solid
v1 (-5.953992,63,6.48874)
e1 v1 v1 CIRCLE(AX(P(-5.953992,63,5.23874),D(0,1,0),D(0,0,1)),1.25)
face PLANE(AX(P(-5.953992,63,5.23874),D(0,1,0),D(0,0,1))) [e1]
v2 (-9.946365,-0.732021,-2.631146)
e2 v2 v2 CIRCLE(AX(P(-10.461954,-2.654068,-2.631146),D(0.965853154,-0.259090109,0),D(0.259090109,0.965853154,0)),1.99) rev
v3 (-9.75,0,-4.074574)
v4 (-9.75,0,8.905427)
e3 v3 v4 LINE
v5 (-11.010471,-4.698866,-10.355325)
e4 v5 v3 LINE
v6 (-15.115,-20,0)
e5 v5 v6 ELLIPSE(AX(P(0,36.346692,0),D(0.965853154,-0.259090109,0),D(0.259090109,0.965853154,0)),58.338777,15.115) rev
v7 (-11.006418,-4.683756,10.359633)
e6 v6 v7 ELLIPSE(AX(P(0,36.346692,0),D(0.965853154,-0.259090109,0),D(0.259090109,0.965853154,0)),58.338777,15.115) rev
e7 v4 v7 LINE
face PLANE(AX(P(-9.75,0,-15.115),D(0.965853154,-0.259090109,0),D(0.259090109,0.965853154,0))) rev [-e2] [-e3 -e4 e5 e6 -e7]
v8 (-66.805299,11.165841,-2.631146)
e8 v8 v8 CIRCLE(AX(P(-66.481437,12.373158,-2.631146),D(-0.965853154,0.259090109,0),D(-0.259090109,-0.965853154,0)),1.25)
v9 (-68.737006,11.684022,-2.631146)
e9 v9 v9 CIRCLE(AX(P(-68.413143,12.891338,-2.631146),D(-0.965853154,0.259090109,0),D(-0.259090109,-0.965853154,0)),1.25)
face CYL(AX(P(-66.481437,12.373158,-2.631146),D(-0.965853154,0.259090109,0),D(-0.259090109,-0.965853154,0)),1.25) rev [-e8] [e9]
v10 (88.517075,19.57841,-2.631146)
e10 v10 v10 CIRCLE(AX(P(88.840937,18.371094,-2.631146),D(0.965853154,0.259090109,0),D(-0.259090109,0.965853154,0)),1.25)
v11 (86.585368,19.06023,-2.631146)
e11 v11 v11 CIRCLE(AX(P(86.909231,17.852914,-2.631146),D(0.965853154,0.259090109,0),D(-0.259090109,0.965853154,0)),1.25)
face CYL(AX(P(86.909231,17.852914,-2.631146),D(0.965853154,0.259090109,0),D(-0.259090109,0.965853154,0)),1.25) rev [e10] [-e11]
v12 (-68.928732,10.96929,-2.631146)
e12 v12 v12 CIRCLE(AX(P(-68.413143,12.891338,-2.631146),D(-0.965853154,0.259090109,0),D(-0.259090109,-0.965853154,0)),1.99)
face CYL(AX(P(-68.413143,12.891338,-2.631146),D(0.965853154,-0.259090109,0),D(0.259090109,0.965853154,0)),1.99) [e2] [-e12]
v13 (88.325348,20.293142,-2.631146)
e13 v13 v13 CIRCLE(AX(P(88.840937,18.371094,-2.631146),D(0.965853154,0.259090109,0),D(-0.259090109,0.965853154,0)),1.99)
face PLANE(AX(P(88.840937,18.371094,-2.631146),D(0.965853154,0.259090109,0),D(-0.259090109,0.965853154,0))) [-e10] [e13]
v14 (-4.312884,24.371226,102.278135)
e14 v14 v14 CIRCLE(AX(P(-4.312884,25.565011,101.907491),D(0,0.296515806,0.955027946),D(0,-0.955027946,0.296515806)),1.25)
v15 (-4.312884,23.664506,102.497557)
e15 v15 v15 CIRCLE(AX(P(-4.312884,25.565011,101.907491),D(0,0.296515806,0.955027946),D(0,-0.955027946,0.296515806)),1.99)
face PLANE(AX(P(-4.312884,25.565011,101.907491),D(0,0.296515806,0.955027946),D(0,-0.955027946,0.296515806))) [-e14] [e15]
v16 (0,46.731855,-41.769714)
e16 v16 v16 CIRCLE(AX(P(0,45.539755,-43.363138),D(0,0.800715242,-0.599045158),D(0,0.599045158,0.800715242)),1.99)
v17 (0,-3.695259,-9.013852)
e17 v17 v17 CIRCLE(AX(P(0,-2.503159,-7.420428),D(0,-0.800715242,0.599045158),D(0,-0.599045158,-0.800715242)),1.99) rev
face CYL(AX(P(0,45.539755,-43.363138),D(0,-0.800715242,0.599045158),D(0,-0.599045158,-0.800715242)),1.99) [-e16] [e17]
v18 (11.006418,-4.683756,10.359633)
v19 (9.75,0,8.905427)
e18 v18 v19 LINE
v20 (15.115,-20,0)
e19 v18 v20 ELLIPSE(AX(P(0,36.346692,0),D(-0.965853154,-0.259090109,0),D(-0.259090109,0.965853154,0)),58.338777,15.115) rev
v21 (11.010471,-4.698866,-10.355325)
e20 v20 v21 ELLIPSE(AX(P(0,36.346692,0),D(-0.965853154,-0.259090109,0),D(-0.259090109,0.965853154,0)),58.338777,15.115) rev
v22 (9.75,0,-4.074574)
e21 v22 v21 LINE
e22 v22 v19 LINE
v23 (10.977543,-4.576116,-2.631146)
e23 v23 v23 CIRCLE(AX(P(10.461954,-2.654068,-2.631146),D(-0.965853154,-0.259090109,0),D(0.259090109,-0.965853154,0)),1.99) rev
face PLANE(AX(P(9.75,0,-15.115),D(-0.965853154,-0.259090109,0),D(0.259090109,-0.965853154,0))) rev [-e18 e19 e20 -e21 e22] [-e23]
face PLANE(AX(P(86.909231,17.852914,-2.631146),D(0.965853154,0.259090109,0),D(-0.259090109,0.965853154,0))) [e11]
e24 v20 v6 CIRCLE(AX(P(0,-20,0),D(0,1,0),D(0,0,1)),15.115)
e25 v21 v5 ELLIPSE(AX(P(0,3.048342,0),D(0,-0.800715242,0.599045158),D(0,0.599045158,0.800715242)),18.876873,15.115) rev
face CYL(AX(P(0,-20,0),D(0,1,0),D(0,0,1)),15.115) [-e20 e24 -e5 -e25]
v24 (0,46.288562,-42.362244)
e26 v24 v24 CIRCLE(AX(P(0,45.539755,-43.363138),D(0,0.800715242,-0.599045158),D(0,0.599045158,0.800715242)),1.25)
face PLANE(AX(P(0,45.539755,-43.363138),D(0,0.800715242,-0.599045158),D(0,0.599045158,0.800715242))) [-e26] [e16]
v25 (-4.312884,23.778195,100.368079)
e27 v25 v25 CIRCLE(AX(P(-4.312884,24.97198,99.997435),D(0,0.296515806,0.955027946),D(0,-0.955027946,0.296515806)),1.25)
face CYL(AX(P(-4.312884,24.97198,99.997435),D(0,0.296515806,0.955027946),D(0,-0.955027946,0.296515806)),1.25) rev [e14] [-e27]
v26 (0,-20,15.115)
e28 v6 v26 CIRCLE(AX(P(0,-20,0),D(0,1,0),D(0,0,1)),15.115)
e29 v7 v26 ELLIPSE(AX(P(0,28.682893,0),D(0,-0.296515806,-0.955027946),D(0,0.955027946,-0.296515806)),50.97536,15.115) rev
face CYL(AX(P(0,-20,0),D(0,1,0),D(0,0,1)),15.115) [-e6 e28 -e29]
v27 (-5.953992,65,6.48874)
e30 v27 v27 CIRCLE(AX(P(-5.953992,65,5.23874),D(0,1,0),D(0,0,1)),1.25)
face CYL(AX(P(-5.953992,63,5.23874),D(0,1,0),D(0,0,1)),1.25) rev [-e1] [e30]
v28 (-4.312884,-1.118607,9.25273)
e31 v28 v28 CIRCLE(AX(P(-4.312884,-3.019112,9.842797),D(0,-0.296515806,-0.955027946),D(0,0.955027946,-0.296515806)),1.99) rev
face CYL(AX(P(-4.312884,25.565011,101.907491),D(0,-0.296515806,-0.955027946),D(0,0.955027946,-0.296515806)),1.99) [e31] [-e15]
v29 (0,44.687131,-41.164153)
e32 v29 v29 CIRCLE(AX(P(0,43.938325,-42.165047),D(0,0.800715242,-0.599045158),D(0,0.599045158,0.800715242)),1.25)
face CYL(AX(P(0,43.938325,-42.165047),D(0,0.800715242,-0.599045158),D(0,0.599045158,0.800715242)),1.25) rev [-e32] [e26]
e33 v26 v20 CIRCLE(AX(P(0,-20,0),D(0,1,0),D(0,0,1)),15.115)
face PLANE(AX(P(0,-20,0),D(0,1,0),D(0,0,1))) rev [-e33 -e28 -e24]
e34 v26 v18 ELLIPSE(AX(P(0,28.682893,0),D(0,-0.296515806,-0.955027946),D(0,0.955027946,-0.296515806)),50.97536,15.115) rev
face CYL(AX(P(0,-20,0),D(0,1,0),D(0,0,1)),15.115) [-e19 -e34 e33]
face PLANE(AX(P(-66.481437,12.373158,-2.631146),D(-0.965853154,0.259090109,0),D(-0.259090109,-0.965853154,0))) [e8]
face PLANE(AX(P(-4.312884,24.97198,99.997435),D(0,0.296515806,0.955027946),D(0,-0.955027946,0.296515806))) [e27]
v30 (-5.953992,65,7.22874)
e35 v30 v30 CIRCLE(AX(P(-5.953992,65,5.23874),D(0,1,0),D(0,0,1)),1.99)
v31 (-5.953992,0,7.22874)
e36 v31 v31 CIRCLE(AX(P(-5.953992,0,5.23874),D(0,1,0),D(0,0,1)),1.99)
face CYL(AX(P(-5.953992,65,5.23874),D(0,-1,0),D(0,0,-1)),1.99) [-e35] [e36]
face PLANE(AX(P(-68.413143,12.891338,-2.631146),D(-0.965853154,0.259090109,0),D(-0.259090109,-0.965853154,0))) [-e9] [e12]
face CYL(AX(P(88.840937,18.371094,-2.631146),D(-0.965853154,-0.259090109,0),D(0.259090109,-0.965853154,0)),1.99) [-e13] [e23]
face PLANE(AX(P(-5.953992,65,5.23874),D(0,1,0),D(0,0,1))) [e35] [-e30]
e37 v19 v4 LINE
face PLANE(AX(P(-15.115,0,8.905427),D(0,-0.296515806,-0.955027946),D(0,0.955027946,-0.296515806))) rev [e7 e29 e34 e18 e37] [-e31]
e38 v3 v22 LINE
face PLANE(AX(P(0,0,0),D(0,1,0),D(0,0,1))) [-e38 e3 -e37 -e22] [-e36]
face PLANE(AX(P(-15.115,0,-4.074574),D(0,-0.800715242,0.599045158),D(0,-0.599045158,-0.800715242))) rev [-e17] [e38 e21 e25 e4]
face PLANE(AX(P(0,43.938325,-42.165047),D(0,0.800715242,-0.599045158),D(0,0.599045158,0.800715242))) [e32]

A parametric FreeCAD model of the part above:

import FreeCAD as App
import Part
import Sketcher
from FreeCAD import Vector
Q = App.Units.Quantity

doc = App.newDocument("Part")
body = doc.addObject("PartDesign::Body", "Body")

# Sketch on XZ plane
sketch1 = body.newObject("Sketcher::SketchObject", "Sketch")
sketch1.AttachmentSupport = (doc.getObject("XZ_Plane"), [""])
sketch1.MapMode = "FlatFace"
sketch1.addGeometry(Part.Circle(Vector(0, 0, 0), Vector(0, 0, 1), 15.115), False)
sketch1.addConstraint([
    Sketcher.Constraint("Coincident", 0, 3, -1, 1),
    Sketcher.Constraint("Diameter", 0, Q("30.23 mm")),
])
pad1 = body.newObject("PartDesign::Pad", "Pad")
pad1.Profile = sketch1
pad1.Length = 20

# Sketch on YZ plane
sketch2 = body.newObject("Sketcher::SketchObject", "Sketch001")
sketch2.AttachmentSupport = (doc.getObject("YZ_Plane"), [""])
sketch2.MapMode = "FlatFace"
sketch2.AttachmentOffset = App.Placement(Vector(0, 0, 15.115), App.Rotation())
sketch2.addGeometry([
    Part.LineSegment(Vector(-20, 15.115, 0), Vector(0, 8.905427, 0)),  # 0
    Part.LineSegment(Vector(0, 8.905427, 0), Vector(0, 15.115, 0)),  # 1
    Part.LineSegment(Vector(0, 15.115, 0), Vector(-20, 15.115, 0)),  # 2
    Part.LineSegment(Vector(0, -4.074574, 0), Vector(-8.259758, -15.115, 0)),  # 3
    Part.LineSegment(Vector(-8.259758, -15.115, 0), Vector(0, -15.115, 0)),  # 4
    Part.LineSegment(Vector(0, -15.115, 0), Vector(0, -4.074574, 0)),  # 5
], False)
sketch2.addConstraint([
    Sketcher.Constraint("Coincident", 0, 2, 1, 1),
    Sketcher.Constraint("Coincident", 1, 2, 2, 1),
    Sketcher.Constraint("Coincident", 2, 2, 0, 1),
    Sketcher.Constraint("Coincident", 3, 2, 4, 1),
    Sketcher.Constraint("Coincident", 4, 2, 5, 1),
    Sketcher.Constraint("Coincident", 5, 2, 3, 1),
    Sketcher.Constraint("Vertical", 1),
    Sketcher.Constraint("Horizontal", 2),
    Sketcher.Constraint("Horizontal", 4),
    Sketcher.Constraint("Vertical", 5),
    Sketcher.Constraint("Symmetric", 1, 2, 4, 2, -1, 1),
    Sketcher.Constraint("PointOnObject", 0, 2, -2),
    Sketcher.Constraint("DistanceX", 2, 2, 2, 1, Q("20 mm")),
    Sketcher.Constraint("DistanceY", 3, 2, 1, 2, Q("30.23 mm")),
    Sketcher.Constraint("DistanceY", 5, 2, 0, 2, Q("12.98 mm")),
    Sketcher.Constraint("DistanceX", 4, 1, 4, 2, Q("8.259758 mm")),
    Sketcher.Constraint("DistanceY", 1, 1, 1, 2, Q("6.209573 mm")),
])
pocket1 = body.newObject("PartDesign::Pocket", "Pocket")
pocket1.Profile = sketch2
pocket1.Type = "ThroughAll"

# Sketch on XY plane
sketch3 = body.newObject("Sketcher::SketchObject", "Sketch002")
sketch3.AttachmentSupport = (doc.getObject("XY_Plane"), [""])
sketch3.MapMode = "FlatFace"
sketch3.AttachmentOffset = App.Placement(Vector(0, 0, 15.115), App.Rotation())
sketch3.addGeometry([
    Part.LineSegment(Vector(15.115, 0, 0), Vector(9.75, 0, 0)),  # 0
    Part.LineSegment(Vector(9.75, 0, 0), Vector(15.115, -20, 0)),  # 1
    Part.LineSegment(Vector(15.115, -20, 0), Vector(15.115, 0, 0)),  # 2
    Part.LineSegment(Vector(-15.115, 0, 0), Vector(-15.115, -20, 0)),  # 3
    Part.LineSegment(Vector(-15.115, -20, 0), Vector(-9.75, 0, 0)),  # 4
    Part.LineSegment(Vector(-9.75, 0, 0), Vector(-15.115, 0, 0)),  # 5
], False)
sketch3.addConstraint([
    Sketcher.Constraint("Coincident", 0, 2, 1, 1),
    Sketcher.Constraint("Coincident", 1, 2, 2, 1),
    Sketcher.Constraint("Coincident", 2, 2, 0, 1),
    Sketcher.Constraint("Coincident", 3, 2, 4, 1),
    Sketcher.Constraint("Coincident", 4, 2, 5, 1),
    Sketcher.Constraint("Coincident", 5, 2, 3, 1),
    Sketcher.Constraint("Horizontal", 0),
    Sketcher.Constraint("Vertical", 2),
    Sketcher.Constraint("Vertical", 3),
    Sketcher.Constraint("Horizontal", 5),
    Sketcher.Constraint("Symmetric", 0, 2, 4, 2, -1, 1),
    Sketcher.Constraint("Symmetric", 1, 2, 3, 2, -2),
    Sketcher.Constraint("PointOnObject", 0, 2, -1),
    Sketcher.Constraint("DistanceY", 2, 1, 2, 2, Q("20 mm")),
    Sketcher.Constraint("DistanceX", 4, 2, 0, 2, Q("19.5 mm")),
    Sketcher.Constraint("DistanceX", 0, 2, 0, 1, Q("5.365 mm")),
])
pocket2 = body.newObject("PartDesign::Pocket", "Pocket001")
pocket2.Profile = sketch3
pocket2.Type = "ThroughAll"

# Sketch on XZ plane
sketch4 = body.newObject("Sketcher::SketchObject", "Sketch003")
sketch4.AttachmentSupport = (doc.getObject("XZ_Plane"), [""])
sketch4.MapMode = "FlatFace"
sketch4.addGeometry(Part.Circle(Vector(-5.953992, 5.23874, 0), Vector(0, 0, 1), 1.99), False)
sketch4.addConstraint([
    Sketcher.Constraint("Diameter", 0, Q("3.98 mm")),
    Sketcher.Constraint("DistanceY", -1, 1, 0, 3, Q("5.23874 mm")),
    Sketcher.Constraint("DistanceX", 0, 3, -1, 1, Q("5.953992 mm")),
])
pad2 = body.newObject("PartDesign::Pad", "Pad001")
pad2.Profile = sketch4
pad2.Length = 65
pad2.Reversed = True

# Sketch on XZ plane
sketch5 = body.newObject("Sketcher::SketchObject", "Sketch004")
sketch5.AttachmentSupport = (doc.getObject("XZ_Plane"), [""])
sketch5.MapMode = "FlatFace"
sketch5.AttachmentOffset = App.Placement(Vector(0, 0, -65), App.Rotation())
sketch5.addGeometry(Part.Circle(Vector(-5.953992, 5.23874, 0), Vector(0, 0, 1), 1.25), False)
sketch5.addConstraint([
    Sketcher.Constraint("Diameter", 0, Q("2.5 mm")),
    Sketcher.Constraint("DistanceY", -1, 1, 0, 3, Q("5.23874 mm")),
    Sketcher.Constraint("DistanceX", 0, 3, -1, 1, Q("5.953992 mm")),
])
pocket3 = body.newObject("PartDesign::Pocket", "Pocket002")
pocket3.Profile = sketch5
pocket3.Length = 2
pocket3.Reversed = True

# Sketch on an angled plane
sketch6 = body.newObject("Sketcher::SketchObject", "Sketch005")
sketch6.Placement = App.Placement(Vector(0, 2.521847, 8.122447), App.Rotation(Vector(1, 0, 0), Vector(0, 0.955027946, -0.296515806), Vector(0, 0.296515806, 0.955027946), "ZXY"))
sketch6.addGeometry(Part.Circle(Vector(-4.312884, -5.801882, 0), Vector(0, 0, 1), 1.99), False)
sketch6.addConstraint([
    Sketcher.Constraint("Diameter", 0, Q("3.98 mm")),
    Sketcher.Constraint("DistanceY", 0, 3, -1, 1, Q("5.801882 mm")),
    Sketcher.Constraint("DistanceX", 0, 3, -1, 1, Q("4.312884 mm")),
])
pad3 = body.newObject("PartDesign::Pad", "Pad002")
pad3.Profile = sketch6
pad3.Length = 96.4

# Sketch on an angled plane
sketch7 = body.newObject("Sketcher::SketchObject", "Sketch006")
sketch7.Placement = App.Placement(Vector(0, 31.10597, 100.187141), App.Rotation(Vector(1, 0, 0), Vector(0, 0.955027946, -0.296515806), Vector(0, 0.296515806, 0.955027946), "ZXY"))
sketch7.addGeometry(Part.Circle(Vector(-4.312884, -5.801882, 0), Vector(0, 0, 1), 1.25), False)
sketch7.addConstraint([
    Sketcher.Constraint("Diameter", 0, Q("2.5 mm")),
    Sketcher.Constraint("DistanceY", 0, 3, -1, 1, Q("5.801882 mm")),
    Sketcher.Constraint("DistanceX", 0, 3, -1, 1, Q("4.312884 mm")),
])
pocket4 = body.newObject("PartDesign::Pocket", "Pocket003")
pocket4.Profile = sketch7
pocket4.Length = 2

# Sketch on an angled plane
sketch8 = body.newObject("Sketcher::SketchObject", "Sketch007")
sketch8.Placement = App.Placement(Vector(9.095505, 2.439869, 0), App.Rotation(Vector(0, 0, -1), Vector(-0.259090109, 0.965853154, 0), Vector(0.965853154, 0.259090109, 0), "ZXY"))
sketch8.addGeometry(Part.Circle(Vector(2.631146, -5.274029, 0), Vector(0, 0, 1), 1.99), False)
sketch8.addConstraint([
    Sketcher.Constraint("Diameter", 0, Q("3.98 mm")),
    Sketcher.Constraint("DistanceY", 0, 3, -1, 1, Q("5.274029 mm")),
    Sketcher.Constraint("DistanceX", -1, 1, 0, 3, Q("2.631146 mm")),
])
pad4 = body.newObject("PartDesign::Pad", "Pad003")
pad4.Profile = sketch8
pad4.Length = 81.15

# Sketch on an angled plane
sketch9 = body.newObject("Sketcher::SketchObject", "Sketch008")
sketch9.Placement = App.Placement(Vector(87.474489, 23.465032, 0), App.Rotation(Vector(0, 0, -1), Vector(-0.259090109, 0.965853154, 0), Vector(0.965853154, 0.259090109, 0), "ZXY"))
sketch9.addGeometry(Part.Circle(Vector(2.631146, -5.274029, 0), Vector(0, 0, 1), 1.25), False)
sketch9.addConstraint([
    Sketcher.Constraint("Diameter", 0, Q("2.5 mm")),
    Sketcher.Constraint("DistanceY", 0, 3, -1, 1, Q("5.274029 mm")),
    Sketcher.Constraint("DistanceX", -1, 1, 0, 3, Q("2.631146 mm")),
])
pocket5 = body.newObject("PartDesign::Pocket", "Pocket004")
pocket5.Profile = sketch9
pocket5.Length = 2

# Sketch on an angled plane
sketch10 = body.newObject("Sketcher::SketchObject", "Sketch009")
sketch10.Placement = App.Placement(Vector(-9.095505, 2.439869, 0), App.Rotation(Vector(0, 0, 1), Vector(0.259090109, 0.965853154, 0), Vector(-0.965853154, 0.259090109, 0), "ZXY"))
sketch10.addGeometry(Part.Circle(Vector(-2.631146, -5.274029, 0), Vector(0, 0, 1), 1.99), False)
sketch10.addConstraint([
    Sketcher.Constraint("Diameter", 0, Q("3.98 mm")),
    Sketcher.Constraint("DistanceY", 0, 3, -1, 1, Q("5.274029 mm")),
    Sketcher.Constraint("DistanceX", 0, 3, -1, 1, Q("2.631146 mm")),
])
pad5 = body.newObject("PartDesign::Pad", "Pad004")
pad5.Profile = sketch10
pad5.Length = 60

# Sketch on an angled plane
sketch11 = body.newObject("Sketcher::SketchObject", "Sketch010")
sketch11.Placement = App.Placement(Vector(-67.046694, 17.985276, 0), App.Rotation(Vector(0, 0, 1), Vector(0.259090109, 0.965853154, 0), Vector(-0.965853154, 0.259090109, 0), "ZXY"))
sketch11.addGeometry(Part.Circle(Vector(-2.631146, -5.274029, 0), Vector(0, 0, 1), 1.25), False)
sketch11.addConstraint([
    Sketcher.Constraint("Diameter", 0, Q("2.5 mm")),
    Sketcher.Constraint("DistanceY", 0, 3, -1, 1, Q("5.274029 mm")),
    Sketcher.Constraint("DistanceX", 0, 3, -1, 1, Q("2.631146 mm")),
])
pocket6 = body.newObject("PartDesign::Pocket", "Pocket005")
pocket6.Profile = sketch11
pocket6.Length = 2

# Sketch on an angled plane
sketch12 = body.newObject("Sketcher::SketchObject", "Sketch011")
sketch12.Placement = App.Placement(Vector(0, 1.954429, -1.462182), App.Rotation(Vector(1, 0, 0), Vector(0, -0.599045158, -0.800715242), Vector(0, 0.800715242, -0.599045158), "ZXY"))
sketch12.addGeometry(Part.Circle(Vector(0, 7.441156, 0), Vector(0, 0, 1), 1.99), False)
sketch12.addConstraint([
    Sketcher.Constraint("PointOnObject", 0, 3, -2),
    Sketcher.Constraint("Diameter", 0, Q("3.98 mm")),
    Sketcher.Constraint("DistanceY", -1, 1, 0, 3, Q("7.441156 mm")),
])
pad6 = body.newObject("PartDesign::Pad", "Pad005")
pad6.Profile = sketch12
pad6.Length = 60

# Sketch on an angled plane
sketch13 = body.newObject("Sketcher::SketchObject", "Sketch012")
sketch13.Placement = App.Placement(Vector(0, 49.997343, -37.404891), App.Rotation(Vector(1, 0, 0), Vector(0, -0.599045158, -0.800715242), Vector(0, 0.800715242, -0.599045158), "ZXY"))
sketch13.addGeometry(Part.Circle(Vector(0, 7.441156, 0), Vector(0, 0, 1), 1.25), False)
sketch13.addConstraint([
    Sketcher.Constraint("PointOnObject", 0, 3, -2),
    Sketcher.Constraint("Diameter", 0, Q("2.5 mm")),
    Sketcher.Constraint("DistanceY", -1, 1, 0, 3, Q("7.441156 mm")),
])
pocket7 = body.newObject("PartDesign::Pocket", "Pocket006")
pocket7.Profile = sketch13
pocket7.Length = 2

doc.recompute()
